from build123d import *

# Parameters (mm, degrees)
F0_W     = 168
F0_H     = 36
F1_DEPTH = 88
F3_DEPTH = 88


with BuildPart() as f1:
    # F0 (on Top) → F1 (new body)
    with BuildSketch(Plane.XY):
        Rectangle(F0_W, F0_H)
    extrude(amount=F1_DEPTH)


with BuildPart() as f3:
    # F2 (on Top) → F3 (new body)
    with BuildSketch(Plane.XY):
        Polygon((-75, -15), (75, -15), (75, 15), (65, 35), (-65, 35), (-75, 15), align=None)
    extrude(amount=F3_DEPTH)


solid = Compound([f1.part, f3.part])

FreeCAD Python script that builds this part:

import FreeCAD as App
import Part
import Sketcher

V = App.Vector
Q = App.Units.Quantity


def add_polygon(sketch, points):
    """Adds a closed chain of lines whose ends are joined by coincident constraints."""
    first, n = sketch.GeometryCount, len(points)
    for a, b in zip(points, points[1:] + points[:1]):
        sketch.addGeometry(Part.LineSegment(App.Vector(*a, 0), App.Vector(*b, 0)), False)
    for i in range(n):
        sketch.addConstraint(Sketcher.Constraint("Coincident", first + i, 2, first + (i + 1) % n, 1))

doc = App.newDocument("Part")
body = doc.addObject("PartDesign::Body", "Body")

# Sketch on XY plane
sketch1 = body.newObject("Sketcher::SketchObject", "Sketch")
sketch1.AttachmentSupport = (doc.getObject("XY_Plane"), [""])
sketch1.MapMode = "FlatFace"
add_polygon(sketch1, [(-84, 18), (-84, -18), (84, -18), (84, 18)])  # lines 0-3
sketch1.addConstraint([
    Sketcher.Constraint("Vertical", 0),
    Sketcher.Constraint("Horizontal", 1),
    Sketcher.Constraint("Vertical", 2),
    Sketcher.Constraint("Horizontal", 3),
    Sketcher.Constraint("Symmetric", 0, 2, 2, 2, -1, 1),
    Sketcher.Constraint("DistanceX", 1, 1, 1, 2, Q("168 mm")),
    Sketcher.Constraint("DistanceY", 0, 2, 0, 1, Q("36 mm")),
])
pad1 = body.newObject("PartDesign::Pad", "Pad")
pad1.Profile = sketch1
pad1.Length = 88
body2 = doc.addObject("PartDesign::Body", "Body001")

# Sketch on XY plane
sketch2 = body2.newObject("Sketcher::SketchObject", "Sketch001")
sketch2.AttachmentSupport = (doc.getObject("XY_Plane001"), [""])
sketch2.MapMode = "FlatFace"
add_polygon(sketch2, [(-75, -15), (75, -15), (75, 15), (65, 35), (-65, 35), (-75, 15)])  # lines 0-5
sketch2.addConstraint([
    Sketcher.Constraint("Horizontal", 0),
    Sketcher.Constraint("Vertical", 1),
    Sketcher.Constraint("Horizontal", 3),
    Sketcher.Constraint("Vertical", 5),
    Sketcher.Constraint("Symmetric", 0, 2, 4, 2, -1, 1),
    Sketcher.Constraint("Horizontal", 1, 2, 4, 2),
    Sketcher.Constraint("Equal", 2, 4),
    Sketcher.Constraint("DistanceX", 0, 1, 0, 2, Q("150 mm")),
    Sketcher.Constraint("DistanceX", 3, 2, 3, 1, Q("130 mm")),
    Sketcher.Constraint("DistanceY", 1, 1, 1, 2, Q("30 mm")),
    Sketcher.Constraint("DistanceY", -1, 1, 2, 2, Q("35 mm")),
])
pad2 = body2.newObject("PartDesign::Pad", "Pad001")
pad2.Profile = sketch2
pad2.Length = 88

doc.recompute()
